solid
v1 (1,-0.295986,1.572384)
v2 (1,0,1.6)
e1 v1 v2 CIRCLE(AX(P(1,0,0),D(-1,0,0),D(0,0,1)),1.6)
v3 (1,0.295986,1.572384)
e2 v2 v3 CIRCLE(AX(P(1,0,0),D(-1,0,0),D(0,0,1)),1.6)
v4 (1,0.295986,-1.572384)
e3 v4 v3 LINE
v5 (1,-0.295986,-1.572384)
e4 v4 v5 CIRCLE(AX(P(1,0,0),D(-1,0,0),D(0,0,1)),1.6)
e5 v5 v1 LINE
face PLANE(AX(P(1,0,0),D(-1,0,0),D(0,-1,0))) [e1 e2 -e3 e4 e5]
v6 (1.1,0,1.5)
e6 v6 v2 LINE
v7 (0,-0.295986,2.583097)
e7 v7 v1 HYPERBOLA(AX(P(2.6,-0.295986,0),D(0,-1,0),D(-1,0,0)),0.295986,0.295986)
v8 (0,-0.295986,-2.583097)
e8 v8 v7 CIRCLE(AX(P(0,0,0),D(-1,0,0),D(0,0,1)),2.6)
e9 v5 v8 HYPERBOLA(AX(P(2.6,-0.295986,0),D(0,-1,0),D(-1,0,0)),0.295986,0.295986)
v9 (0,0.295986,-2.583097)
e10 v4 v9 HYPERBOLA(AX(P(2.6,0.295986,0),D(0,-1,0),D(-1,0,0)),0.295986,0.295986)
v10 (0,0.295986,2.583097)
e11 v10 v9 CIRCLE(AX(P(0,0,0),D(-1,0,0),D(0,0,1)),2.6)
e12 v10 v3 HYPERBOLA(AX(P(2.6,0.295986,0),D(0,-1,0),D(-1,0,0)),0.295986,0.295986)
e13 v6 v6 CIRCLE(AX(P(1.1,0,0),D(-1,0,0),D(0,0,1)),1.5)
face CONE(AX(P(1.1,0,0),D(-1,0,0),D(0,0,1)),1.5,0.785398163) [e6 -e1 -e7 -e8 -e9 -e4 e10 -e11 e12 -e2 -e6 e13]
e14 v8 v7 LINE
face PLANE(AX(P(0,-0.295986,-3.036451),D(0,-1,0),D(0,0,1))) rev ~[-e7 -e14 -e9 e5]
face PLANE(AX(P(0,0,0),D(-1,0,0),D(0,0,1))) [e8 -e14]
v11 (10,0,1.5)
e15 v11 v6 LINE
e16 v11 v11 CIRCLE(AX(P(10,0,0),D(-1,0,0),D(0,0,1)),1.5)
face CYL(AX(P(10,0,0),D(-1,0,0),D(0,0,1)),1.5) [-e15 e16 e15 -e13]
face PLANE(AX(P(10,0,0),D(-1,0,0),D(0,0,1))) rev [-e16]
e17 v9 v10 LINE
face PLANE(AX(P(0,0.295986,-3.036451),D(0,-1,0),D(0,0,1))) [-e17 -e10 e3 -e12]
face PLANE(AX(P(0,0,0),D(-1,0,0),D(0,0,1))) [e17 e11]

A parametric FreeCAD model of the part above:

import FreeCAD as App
import Part
import Sketcher
from FreeCAD import Vector
Q = App.Units.Quantity


def add_polygon(sketch, points):
    """Adds a closed chain of lines whose ends are joined by coincident constraints."""
    first, n = sketch.GeometryCount, len(points)
    for a, b in zip(points, points[1:] + points[:1]):
        sketch.addGeometry(Part.LineSegment(App.Vector(*a, 0), App.Vector(*b, 0)), False)
    for i in range(n):
        sketch.addConstraint(Sketcher.Constraint("Coincident", first + i, 2, first + (i + 1) % n, 1))

doc = App.newDocument("Part")
params = doc.addObject("Spreadsheet::Sheet", "Params")
for row, (alias, value) in enumerate([
    ("sketch1_width", "10 mm"),
    ("sketch1_width2", "8.9 mm"),
    ("sketch1_height", "2.6 mm"),
    ("revolution_angle", "360 deg"),
    ("pocket1_length", "1 mm"),
], start=1):
    params.set(f"A{row}", alias)
    params.set(f"B{row}", "=" + value)
    params.setAlias(f"B{row}", alias)

body = doc.addObject("PartDesign::Body", "Body")

# Sketch on XZ plane
sketch1 = body.newObject("Sketcher::SketchObject", "Sketch")
sketch1.AttachmentSupport = (doc.getObject("XZ_Plane"), [""])
sketch1.MapMode = "FlatFace"
add_polygon(sketch1, [(0, 2.6), (0, 0), (10, 0), (10, 1.5), (1.1, 1.5)])  # lines 0-4
sketch1.addConstraint([
    Sketcher.Constraint("Vertical", 0),
    Sketcher.Constraint("Horizontal", 1),
    Sketcher.Constraint("Vertical", 2),
    Sketcher.Constraint("Horizontal", 3),
    Sketcher.Constraint("Coincident", 0, 2, -1, 1),
    Sketcher.Constraint("DistanceX", 1, 1, 1, 2, Q("10 mm")),
    Sketcher.Constraint("Angle", 4, Q("135 deg")),
    Sketcher.Constraint("DistanceX", 3, 2, 3, 1, Q("8.9 mm")),
    Sketcher.Constraint("DistanceY", 0, 2, 0, 1, Q("2.6 mm")),
])
sketch1.setExpression("Constraints[10]", "Params.sketch1_width")
sketch1.setExpression("Constraints[12]", "Params.sketch1_width2")
sketch1.setExpression("Constraints[13]", "Params.sketch1_height")
revolution = body.newObject("PartDesign::Revolution", "Revolution")
revolution.Profile = sketch1
revolution.ReferenceAxis = (sketch1, ["H_Axis"])
revolution.setExpression("Angle", "Params.revolution_angle")

# Sketch on YZ plane
sketch2 = body.newObject("Sketcher::SketchObject", "Sketch001")
sketch2.AttachmentSupport = (doc.getObject("YZ_Plane"), [""])
sketch2.MapMode = "FlatFace"
add_polygon(sketch2, [(0.3, 3), (0.3, -3), (-0.3, -3), (-0.3, 3)])  # lines 0-3
sketch2.addConstraint([
    Sketcher.Constraint("Vertical", 0),
    Sketcher.Constraint("Horizontal", 1),
    Sketcher.Constraint("Vertical", 2),
    Sketcher.Constraint("Horizontal", 3),
    Sketcher.Constraint("Symmetric", 0, 2, 2, 2, -1, 1),
    Sketcher.Constraint("DistanceX", 1, 2, 1, 1, Q("0.591972 mm")),
    Sketcher.Constraint("DistanceY", 0, 2, 0, 1, Q("6.072902 mm")),
])
pocket1 = body.newObject("PartDesign::Pocket", "Pocket")
pocket1.Profile = sketch2
pocket1.setExpression("Length", "Params.pocket1_length")
pocket1.Reversed = True

doc.recompute()
